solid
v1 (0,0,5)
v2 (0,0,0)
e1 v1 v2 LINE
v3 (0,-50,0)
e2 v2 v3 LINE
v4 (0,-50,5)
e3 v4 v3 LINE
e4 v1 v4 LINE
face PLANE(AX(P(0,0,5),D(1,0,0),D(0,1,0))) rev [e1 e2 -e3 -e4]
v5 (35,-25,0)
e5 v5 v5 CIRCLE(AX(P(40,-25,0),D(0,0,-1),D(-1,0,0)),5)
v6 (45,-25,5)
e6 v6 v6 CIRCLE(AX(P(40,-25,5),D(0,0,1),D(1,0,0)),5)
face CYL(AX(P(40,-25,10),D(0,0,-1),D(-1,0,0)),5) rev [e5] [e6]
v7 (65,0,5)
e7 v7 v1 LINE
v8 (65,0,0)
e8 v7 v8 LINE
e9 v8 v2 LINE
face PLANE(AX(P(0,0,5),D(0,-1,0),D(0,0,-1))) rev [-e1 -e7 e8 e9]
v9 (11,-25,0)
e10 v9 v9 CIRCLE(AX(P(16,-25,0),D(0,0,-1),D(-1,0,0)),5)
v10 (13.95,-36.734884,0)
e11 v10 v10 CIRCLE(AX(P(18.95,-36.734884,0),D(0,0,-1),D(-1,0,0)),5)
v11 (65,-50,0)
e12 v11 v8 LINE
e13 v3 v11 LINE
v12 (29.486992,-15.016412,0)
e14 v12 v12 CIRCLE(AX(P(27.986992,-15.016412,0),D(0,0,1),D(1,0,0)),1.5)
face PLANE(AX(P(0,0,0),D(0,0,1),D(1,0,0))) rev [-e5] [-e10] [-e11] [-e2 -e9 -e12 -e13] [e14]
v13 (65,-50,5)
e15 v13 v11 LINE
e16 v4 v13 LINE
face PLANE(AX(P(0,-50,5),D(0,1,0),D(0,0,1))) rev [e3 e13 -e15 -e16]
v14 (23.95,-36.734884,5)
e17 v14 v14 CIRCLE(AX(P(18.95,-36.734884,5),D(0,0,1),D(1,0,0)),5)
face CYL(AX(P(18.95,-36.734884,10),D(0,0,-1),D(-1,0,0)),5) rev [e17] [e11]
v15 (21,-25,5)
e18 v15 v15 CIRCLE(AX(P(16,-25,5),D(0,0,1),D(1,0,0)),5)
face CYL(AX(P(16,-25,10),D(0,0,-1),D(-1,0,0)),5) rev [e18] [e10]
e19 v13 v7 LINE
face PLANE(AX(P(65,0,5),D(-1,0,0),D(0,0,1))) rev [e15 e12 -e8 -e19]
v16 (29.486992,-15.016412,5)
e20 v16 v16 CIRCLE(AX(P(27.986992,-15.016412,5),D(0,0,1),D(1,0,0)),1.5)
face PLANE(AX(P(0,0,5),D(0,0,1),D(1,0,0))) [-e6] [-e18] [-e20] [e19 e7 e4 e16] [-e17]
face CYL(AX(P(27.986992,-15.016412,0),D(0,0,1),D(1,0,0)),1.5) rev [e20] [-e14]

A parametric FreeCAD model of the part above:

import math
import FreeCAD as App
import Part
import Sketcher
Q = App.Units.Quantity

doc = App.newDocument("Part")
body = doc.addObject("PartDesign::Body", "Body")

# Sketch on XY plane
sketch1 = body.newObject("Sketcher::SketchObject", "Sketch")
sketch1.AttachmentSupport = (doc.getObject("XY_Plane"), [""])
sketch1.MapMode = "FlatFace"
sketch1.addGeometry([
    Part.LineSegment(App.Vector(0, 0, 0), App.Vector(0, -50, 0)),
    Part.LineSegment(App.Vector(0, -50, 0), App.Vector(65, -50, 0)),
    Part.LineSegment(App.Vector(65, -50, 0), App.Vector(65, 0, 0)),
    Part.LineSegment(App.Vector(65, 0, 0), App.Vector(0, 0, 0)),
], False)
sketch1.addConstraint([
    Sketcher.Constraint("Coincident", 0, 2, 1, 1),
    Sketcher.Constraint("Coincident", 1, 2, 2, 1),
    Sketcher.Constraint("Coincident", 2, 2, 3, 1),
    Sketcher.Constraint("Coincident", 3, 2, 0, 1),
    Sketcher.Constraint("Vertical", 0),
    Sketcher.Constraint("Horizontal", 1),
    Sketcher.Constraint("Vertical", 2),
    Sketcher.Constraint("Horizontal", 3),
    Sketcher.Constraint("Coincident", 3, 2, -1, 1),
    Sketcher.Constraint("DistanceX", 1, 1, 1, 2, Q("65 mm")),
    Sketcher.Constraint("DistanceY", 0, 2, 0, 1, Q("50 mm")),
])
pad1 = body.newObject("PartDesign::Pad", "Pad")
pad1.Profile = sketch1
pad1.Length = 5

# Sketch on XY plane
sketch2 = body.newObject("Sketcher::SketchObject", "Sketch001")
sketch2.AttachmentSupport = (doc.getObject("XY_Plane"), [""])
sketch2.MapMode = "FlatFace"
sketch2.AttachmentOffset = App.Placement(App.Vector(0, 0, 5), App.Rotation())
sketch2.addGeometry([
    Part.Circle(App.Vector(40, -25, 0), App.Vector(0, 0, 1), 1.5),
    Part.Circle(App.Vector(16, -25, 0), App.Vector(0, 0, 1), 1.5),
    Part.Circle(App.Vector(28, -15, 0), App.Vector(0, 0, 1), 1.5),
], False)
sketch2.addConstraint([
    Sketcher.Constraint("Equal", 0, 1),
    Sketcher.Constraint("Equal", 1, 2),
    Sketcher.Constraint("Horizontal", 0, 3, 1, 3),
    Sketcher.Constraint("Diameter", 0, Q("3 mm")),
    Sketcher.Constraint("DistanceX", -1, 1, 0, 3, Q("40 mm")),
    Sketcher.Constraint("DistanceY", 0, 3, -1, 1, Q("25 mm")),
    Sketcher.Constraint("DistanceX", -1, 1, 1, 3, Q("16 mm")),
    Sketcher.Constraint("DistanceX", -1, 1, 2, 3, Q("27.986992 mm")),
    Sketcher.Constraint("DistanceY", 2, 3, -1, 1, Q("15.016412 mm")),
])
pocket1 = body.newObject("PartDesign::Pocket", "Pocket")
pocket1.Profile = sketch2
pocket1.Length = 5

# Sketch on XY plane
sketch3 = body.newObject("Sketcher::SketchObject", "Sketch002")
sketch3.AttachmentSupport = (doc.getObject("XY_Plane"), [""])
sketch3.MapMode = "FlatFace"
sketch3.AttachmentOffset = App.Placement(App.Vector(0, 0, 10), App.Rotation())
sketch3.addGeometry([
    Part.ArcOfCircle(Part.Circle(App.Vector(40, -25, 0), App.Vector(0, 0, 1), 5), math.radians(-151), math.radians(180)),  # 0
    Part.ArcOfCircle(Part.Circle(App.Vector(40, -25, 0), App.Vector(0, 0, 1), 5), math.radians(180), math.radians(209)),  # 1
    Part.ArcOfCircle(Part.Circle(App.Vector(40, -25, 0), App.Vector(0, 0, 1), 1.5), math.radians(-151), math.radians(180)),  # 2
    Part.ArcOfCircle(Part.Circle(App.Vector(40, -25, 0), App.Vector(0, 0, 1), 1.5), math.radians(-180), math.radians(-151)),  # 3
    Part.ArcOfCircle(Part.Circle(App.Vector(18.9, -36.7, 0), App.Vector(0, 0, 1), 5), math.radians(29), math.radians(104)),  # 4
    Part.ArcOfCircle(Part.Circle(App.Vector(18.9, -36.7, 0), App.Vector(0, 0, 1), 5), math.radians(180), math.radians(389)),  # 5
    Part.ArcOfCircle(Part.Circle(App.Vector(19, -36.7, 0), App.Vector(0, 0, 1), 5), math.radians(104), math.radians(180)),  # 6
    Part.ArcOfCircle(Part.Circle(App.Vector(16, -25, 0), App.Vector(0, 0, 1), 5), math.radians(0), math.radians(180)),  # 7
    Part.ArcOfCircle(Part.Circle(App.Vector(16, -25, 0), App.Vector(0, 0, 1), 5), math.radians(-76), math.radians(0)),  # 8
    Part.ArcOfCircle(Part.Circle(App.Vector(16, -25, 0), App.Vector(0, 0, 1), 5), math.radians(180), math.radians(284)),  # 9
    Part.ArcOfCircle(Part.Circle(App.Vector(16, -25, 0), App.Vector(0, 0, 1), 1.5), math.radians(180), math.radians(284)),  # 10
    Part.ArcOfCircle(Part.Circle(App.Vector(16, -25, 0), App.Vector(0, 0, 1), 1.5), math.radians(-76), math.radians(0)),  # 11
    Part.ArcOfCircle(Part.Circle(App.Vector(16, -25, 0), App.Vector(0, 0, 1), 1.5), math.radians(0), math.radians(180)),  # 12
], False)
sketch3.addConstraint([
    Sketcher.Constraint("Tangent", 0, 1, 1, 2),
    Sketcher.Constraint("Coincident", 1, 1, 0, 2),
    Sketcher.Constraint("Tangent", 2, 1, 3, 2),
    Sketcher.Constraint("Coincident", 3, 1, 2, 2),
    Sketcher.Constraint("Tangent", 4, 1, 5, 2),
    Sketcher.Constraint("Tangent", 5, 1, 6, 2),
    Sketcher.Constraint("Tangent", 6, 1, 4, 2),
    Sketcher.Constraint("Tangent", 7, 1, 8, 2),
    Sketcher.Constraint("Tangent", 8, 1, 9, 2),
    Sketcher.Constraint("Tangent", 9, 1, 7, 2),
    Sketcher.Constraint("Tangent", 10, 2, 11, 1),
    Sketcher.Constraint("Tangent", 11, 2, 12, 1),
    Sketcher.Constraint("Tangent", 12, 2, 10, 1),
    Sketcher.Constraint("Coincident", 2, 3, 0, 3),
    Sketcher.Constraint("Coincident", 10, 3, 7, 3),
    Sketcher.Constraint("Equal", 1, 4),
    Sketcher.Constraint("Equal", 6, 7),
    Sketcher.Constraint("Equal", 3, 10),
    Sketcher.Constraint("Horizontal", 3, 3, 7, 3),
    Sketcher.Constraint("Horizontal", 12, 3, 1, 1),
    Sketcher.Constraint("Horizontal", 1, 1, 3, 1),
    Sketcher.Constraint("Horizontal", 6, 3, 5, 1),
    Sketcher.Constraint("Horizontal", 3, 1, 7, 1),
    Sketcher.Constraint("Horizontal", 7, 1, 9, 1),
    Sketcher.Constraint("Horizontal", 9, 1, 11, 2),
    Sketcher.Constraint("Horizontal", 11, 2, 12, 2),
    Sketcher.Constraint("Radius", 0, Q("5 mm")),
    Sketcher.Constraint("Radius", 2, Q("1.5 mm")),
    Sketcher.Constraint("DistanceX", -1, 1, 0, 3, Q("40 mm")),
    Sketcher.Constraint("DistanceY", 0, 3, -1, 1, Q("25 mm")),
    Sketcher.Constraint("DistanceX", -1, 1, 7, 3, Q("16 mm")),
    Sketcher.Constraint("DistanceX", -1, 1, 4, 3, Q("18.95 mm")),
    Sketcher.Constraint("DistanceX", -1, 1, 0, 1, Q("35.63278 mm")),
    Sketcher.Constraint("DistanceX", -1, 1, 4, 1, Q("23.31722 mm")),
    Sketcher.Constraint("DistanceY", 4, 1, -1, 1, Q("34.300261 mm")),
    Sketcher.Constraint("DistanceX", -1, 1, 6, 1, Q("17.730992 mm")),
    Sketcher.Constraint("DistanceX", -1, 1, 8, 1, Q("17.219008 mm")),
    Sketcher.Constraint("DistanceX", -1, 1, 2, 1, Q("38.689834 mm")),
    Sketcher.Constraint("DistanceX", -1, 1, 10, 2, Q("16.365702 mm")),
])
pocket2 = body.newObject("PartDesign::Pocket", "Pocket001")
pocket2.Profile = sketch3
pocket2.Length = 10

doc.recompute()
